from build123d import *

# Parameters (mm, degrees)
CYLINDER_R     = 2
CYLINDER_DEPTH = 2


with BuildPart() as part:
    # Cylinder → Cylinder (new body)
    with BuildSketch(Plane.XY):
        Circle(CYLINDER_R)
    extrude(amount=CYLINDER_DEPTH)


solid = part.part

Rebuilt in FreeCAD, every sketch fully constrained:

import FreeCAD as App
import Part
import Sketcher
from FreeCAD import Vector

doc = App.newDocument("Part")
body = doc.addObject("PartDesign::Body", "Body")

sketch1 = body.newObject("Sketcher::SketchObject", "Sketch")
sketch1.AttachmentSupport = (doc.getObject("XY_Plane"), [""])
sketch1.MapMode = "FlatFace"
sketch1.addGeometry(Part.Circle(Vector(0, 0, 0), Vector(0, 0, 1), 2), False)
sketch1.addConstraint(Sketcher.Constraint("Coincident", 0, 3, -1, 1))
sketch1.addConstraint(Sketcher.Constraint("Diameter", 0, 4.0))
pad1 = body.newObject("PartDesign::Pad", "Pad")
pad1.Profile = sketch1
pad1.Length = 2

doc.recompute()
